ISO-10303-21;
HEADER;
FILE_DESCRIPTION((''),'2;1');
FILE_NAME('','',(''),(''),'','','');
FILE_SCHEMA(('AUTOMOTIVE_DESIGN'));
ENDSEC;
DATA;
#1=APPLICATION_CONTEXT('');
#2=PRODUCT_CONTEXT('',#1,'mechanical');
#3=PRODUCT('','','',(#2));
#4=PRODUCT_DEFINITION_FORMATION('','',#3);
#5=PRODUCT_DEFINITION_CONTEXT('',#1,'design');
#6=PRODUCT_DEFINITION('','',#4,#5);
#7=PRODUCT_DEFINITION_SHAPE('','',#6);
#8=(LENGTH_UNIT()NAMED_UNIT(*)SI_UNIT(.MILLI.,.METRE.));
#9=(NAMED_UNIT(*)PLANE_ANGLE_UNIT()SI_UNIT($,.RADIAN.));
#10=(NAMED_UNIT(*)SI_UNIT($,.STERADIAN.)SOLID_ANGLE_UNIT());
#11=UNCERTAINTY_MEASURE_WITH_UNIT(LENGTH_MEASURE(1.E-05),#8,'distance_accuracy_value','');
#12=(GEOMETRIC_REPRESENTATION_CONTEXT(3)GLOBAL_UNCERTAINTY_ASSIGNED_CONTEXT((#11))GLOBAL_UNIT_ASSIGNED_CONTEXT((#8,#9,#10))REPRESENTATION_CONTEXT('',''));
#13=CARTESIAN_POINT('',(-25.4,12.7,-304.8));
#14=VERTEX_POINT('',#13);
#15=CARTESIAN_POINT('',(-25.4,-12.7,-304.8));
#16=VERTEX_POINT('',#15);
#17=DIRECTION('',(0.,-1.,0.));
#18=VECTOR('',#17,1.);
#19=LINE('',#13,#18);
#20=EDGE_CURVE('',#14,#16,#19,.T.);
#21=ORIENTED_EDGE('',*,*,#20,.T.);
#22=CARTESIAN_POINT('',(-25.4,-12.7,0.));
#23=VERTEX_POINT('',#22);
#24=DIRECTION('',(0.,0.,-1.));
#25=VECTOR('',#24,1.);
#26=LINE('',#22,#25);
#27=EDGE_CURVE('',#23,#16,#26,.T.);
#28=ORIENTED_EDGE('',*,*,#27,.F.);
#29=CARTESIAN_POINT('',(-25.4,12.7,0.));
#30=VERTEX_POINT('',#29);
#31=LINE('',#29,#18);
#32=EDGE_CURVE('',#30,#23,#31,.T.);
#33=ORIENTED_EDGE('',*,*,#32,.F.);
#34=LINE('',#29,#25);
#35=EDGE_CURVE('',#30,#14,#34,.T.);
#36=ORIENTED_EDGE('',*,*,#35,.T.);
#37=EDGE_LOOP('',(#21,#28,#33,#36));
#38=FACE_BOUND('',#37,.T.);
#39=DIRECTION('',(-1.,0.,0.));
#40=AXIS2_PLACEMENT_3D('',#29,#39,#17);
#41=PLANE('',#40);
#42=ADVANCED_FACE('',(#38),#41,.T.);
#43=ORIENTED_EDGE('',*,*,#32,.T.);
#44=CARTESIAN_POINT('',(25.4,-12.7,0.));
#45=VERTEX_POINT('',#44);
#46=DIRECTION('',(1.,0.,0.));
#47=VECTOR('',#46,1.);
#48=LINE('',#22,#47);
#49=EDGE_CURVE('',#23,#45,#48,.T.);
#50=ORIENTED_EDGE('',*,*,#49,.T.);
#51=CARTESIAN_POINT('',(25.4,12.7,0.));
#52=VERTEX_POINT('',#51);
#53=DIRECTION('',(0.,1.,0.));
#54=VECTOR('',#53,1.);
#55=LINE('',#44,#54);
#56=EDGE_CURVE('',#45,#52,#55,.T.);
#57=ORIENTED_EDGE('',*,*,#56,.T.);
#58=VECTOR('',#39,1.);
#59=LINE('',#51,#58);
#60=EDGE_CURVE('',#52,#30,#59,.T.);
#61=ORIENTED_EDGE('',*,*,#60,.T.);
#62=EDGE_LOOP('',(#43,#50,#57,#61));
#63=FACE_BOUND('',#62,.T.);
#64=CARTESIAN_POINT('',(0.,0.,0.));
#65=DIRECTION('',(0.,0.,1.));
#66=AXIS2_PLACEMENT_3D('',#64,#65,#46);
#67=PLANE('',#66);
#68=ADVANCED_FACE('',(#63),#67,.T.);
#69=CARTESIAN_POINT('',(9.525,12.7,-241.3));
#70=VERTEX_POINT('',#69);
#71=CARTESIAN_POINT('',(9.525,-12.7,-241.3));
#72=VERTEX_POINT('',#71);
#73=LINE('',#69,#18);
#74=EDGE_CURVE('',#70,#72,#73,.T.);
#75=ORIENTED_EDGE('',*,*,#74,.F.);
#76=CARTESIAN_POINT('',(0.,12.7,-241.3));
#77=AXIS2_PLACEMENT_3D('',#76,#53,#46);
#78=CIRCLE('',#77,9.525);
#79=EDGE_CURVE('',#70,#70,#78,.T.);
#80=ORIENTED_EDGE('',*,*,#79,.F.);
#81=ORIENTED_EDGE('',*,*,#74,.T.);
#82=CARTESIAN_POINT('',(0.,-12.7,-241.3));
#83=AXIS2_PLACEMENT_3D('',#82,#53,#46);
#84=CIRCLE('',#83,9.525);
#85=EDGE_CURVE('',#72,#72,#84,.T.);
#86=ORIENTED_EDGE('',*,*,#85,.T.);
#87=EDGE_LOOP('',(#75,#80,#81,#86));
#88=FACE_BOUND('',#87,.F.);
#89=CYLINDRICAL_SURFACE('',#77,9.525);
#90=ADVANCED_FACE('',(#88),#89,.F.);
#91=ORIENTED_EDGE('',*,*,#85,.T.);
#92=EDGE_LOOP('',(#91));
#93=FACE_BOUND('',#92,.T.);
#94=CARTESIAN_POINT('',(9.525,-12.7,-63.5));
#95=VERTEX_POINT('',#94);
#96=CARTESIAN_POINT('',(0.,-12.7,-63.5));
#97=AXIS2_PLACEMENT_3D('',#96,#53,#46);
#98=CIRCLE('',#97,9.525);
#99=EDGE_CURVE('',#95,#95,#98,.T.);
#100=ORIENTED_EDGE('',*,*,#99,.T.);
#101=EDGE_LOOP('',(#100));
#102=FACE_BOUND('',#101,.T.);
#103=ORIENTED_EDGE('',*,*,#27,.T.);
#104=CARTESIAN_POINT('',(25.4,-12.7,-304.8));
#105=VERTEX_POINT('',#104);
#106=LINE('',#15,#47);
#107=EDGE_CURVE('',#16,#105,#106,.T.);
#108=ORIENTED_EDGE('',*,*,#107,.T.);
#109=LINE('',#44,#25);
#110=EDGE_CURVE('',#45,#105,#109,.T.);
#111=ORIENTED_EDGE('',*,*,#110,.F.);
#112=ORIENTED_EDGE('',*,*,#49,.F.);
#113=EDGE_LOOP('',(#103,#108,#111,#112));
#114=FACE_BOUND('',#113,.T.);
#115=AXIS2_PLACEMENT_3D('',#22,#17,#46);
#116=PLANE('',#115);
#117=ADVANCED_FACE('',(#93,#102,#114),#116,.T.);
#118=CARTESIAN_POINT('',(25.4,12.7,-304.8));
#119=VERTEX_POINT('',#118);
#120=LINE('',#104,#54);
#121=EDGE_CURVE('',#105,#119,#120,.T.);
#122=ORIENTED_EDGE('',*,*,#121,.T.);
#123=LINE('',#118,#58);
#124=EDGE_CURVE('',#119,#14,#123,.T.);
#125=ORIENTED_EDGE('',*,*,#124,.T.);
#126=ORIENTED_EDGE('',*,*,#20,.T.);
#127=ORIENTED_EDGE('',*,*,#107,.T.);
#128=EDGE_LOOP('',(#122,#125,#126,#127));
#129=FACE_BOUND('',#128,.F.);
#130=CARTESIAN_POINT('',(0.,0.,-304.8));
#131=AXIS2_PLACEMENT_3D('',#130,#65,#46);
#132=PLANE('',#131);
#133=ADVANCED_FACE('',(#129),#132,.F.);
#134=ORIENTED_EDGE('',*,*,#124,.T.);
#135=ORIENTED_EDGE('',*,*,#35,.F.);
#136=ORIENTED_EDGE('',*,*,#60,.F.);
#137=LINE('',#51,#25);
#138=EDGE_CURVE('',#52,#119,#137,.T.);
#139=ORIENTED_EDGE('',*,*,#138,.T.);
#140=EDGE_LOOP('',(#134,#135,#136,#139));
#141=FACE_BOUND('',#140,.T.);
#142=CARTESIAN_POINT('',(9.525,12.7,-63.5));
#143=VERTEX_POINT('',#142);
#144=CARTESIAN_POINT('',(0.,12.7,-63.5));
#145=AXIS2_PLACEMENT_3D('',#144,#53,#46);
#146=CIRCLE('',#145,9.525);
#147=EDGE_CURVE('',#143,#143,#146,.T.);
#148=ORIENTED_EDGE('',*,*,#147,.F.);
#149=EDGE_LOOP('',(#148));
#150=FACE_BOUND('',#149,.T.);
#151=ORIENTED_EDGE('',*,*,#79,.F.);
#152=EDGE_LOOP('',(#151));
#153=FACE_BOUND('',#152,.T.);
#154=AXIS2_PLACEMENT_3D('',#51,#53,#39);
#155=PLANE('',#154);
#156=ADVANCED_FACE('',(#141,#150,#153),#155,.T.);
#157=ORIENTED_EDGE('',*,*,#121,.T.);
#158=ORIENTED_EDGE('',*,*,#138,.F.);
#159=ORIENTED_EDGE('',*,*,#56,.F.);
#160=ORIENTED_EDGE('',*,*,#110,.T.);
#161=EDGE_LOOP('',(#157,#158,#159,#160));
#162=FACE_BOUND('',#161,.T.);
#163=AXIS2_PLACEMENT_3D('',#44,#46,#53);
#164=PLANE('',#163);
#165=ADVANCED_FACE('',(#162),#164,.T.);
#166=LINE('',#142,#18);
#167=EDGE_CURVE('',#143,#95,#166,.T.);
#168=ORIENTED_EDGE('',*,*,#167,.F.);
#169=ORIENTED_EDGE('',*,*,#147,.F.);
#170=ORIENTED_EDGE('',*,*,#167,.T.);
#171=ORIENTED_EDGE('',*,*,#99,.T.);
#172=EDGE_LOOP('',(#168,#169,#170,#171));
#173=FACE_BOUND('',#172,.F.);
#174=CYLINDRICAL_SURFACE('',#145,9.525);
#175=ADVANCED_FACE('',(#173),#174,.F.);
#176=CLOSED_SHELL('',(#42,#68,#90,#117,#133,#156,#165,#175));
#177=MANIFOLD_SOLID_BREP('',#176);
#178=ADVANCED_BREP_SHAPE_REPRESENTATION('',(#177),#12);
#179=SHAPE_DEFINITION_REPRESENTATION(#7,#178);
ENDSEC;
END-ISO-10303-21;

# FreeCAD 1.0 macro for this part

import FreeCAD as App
import Part
import Sketcher
Q = App.Units.Quantity


def add_polygon(sketch, points):
    """Adds a closed chain of lines whose ends are joined by coincident constraints."""
    first, n = sketch.GeometryCount, len(points)
    for a, b in zip(points, points[1:] + points[:1]):
        sketch.addGeometry(Part.LineSegment(App.Vector(*a, 0), App.Vector(*b, 0)), False)
    for i in range(n):
        sketch.addConstraint(Sketcher.Constraint("Coincident", first + i, 2, first + (i + 1) % n, 1))

doc = App.newDocument("Part")
body = doc.addObject("PartDesign::Body", "Body")

# Sketch on XY plane
sketch1 = body.newObject("Sketcher::SketchObject", "Sketch")
sketch1.AttachmentSupport = (doc.getObject("XY_Plane"), [""])
sketch1.MapMode = "FlatFace"
add_polygon(sketch1, [(-25, 13), (-25, -13), (25, -13), (25, 13)])  # lines 0-3
sketch1.addConstraint(Sketcher.Constraint("Vertical", 0))
sketch1.addConstraint(Sketcher.Constraint("Horizontal", 1))
sketch1.addConstraint(Sketcher.Constraint("Vertical", 2))
sketch1.addConstraint(Sketcher.Constraint("Horizontal", 3))
sketch1.addConstraint(Sketcher.Constraint("Symmetric", 0, 2, 2, 2, -1, 1))
sketch1.addConstraint(Sketcher.Constraint("DistanceX", 1, 1, 1, 2, Q("2 in")))
sketch1.addConstraint(Sketcher.Constraint("DistanceY", 0, 2, 0, 1, Q("1 in")))
pad1 = body.newObject("PartDesign::Pad", "Pad")
pad1.Profile = sketch1
pad1.Length = Q("12 in")
pad1.Reversed = True

# Sketch on XZ plane
sketch2 = body.newObject("Sketcher::SketchObject", "Sketch001")
sketch2.AttachmentSupport = (doc.getObject("XZ_Plane"), [""])
sketch2.MapMode = "FlatFace"
sketch2.AttachmentOffset = App.Placement(App.Vector(0, 0, -0.5 * 25.4), App.Rotation())
sketch2.addGeometry(Part.Circle(App.Vector(0, -64, 0), App.Vector(0, 0, 1), 10), False)
sketch2.addGeometry(Part.Circle(App.Vector(0, -241, 0), App.Vector(0, 0, 1), 10), False)
sketch2.addConstraint(Sketcher.Constraint("Equal", 0, 1))
sketch2.addConstraint(Sketcher.Constraint("PointOnObject", 0, 3, -2))
sketch2.addConstraint(Sketcher.Constraint("PointOnObject", 1, 3, -2))
sketch2.addConstraint(Sketcher.Constraint("Diameter", 0, Q("0.75 in")))
sketch2.addConstraint(Sketcher.Constraint("DistanceY", 1, 3, 0, 3, Q("7 in")))
sketch2.addConstraint(Sketcher.Constraint("DistanceY", 0, 3, -1, 1, Q("2.5 in")))
pocket1 = body.newObject("PartDesign::Pocket", "Pocket")
pocket1.Profile = sketch2
pocket1.Length = Q("10 in")
pocket1.Reversed = True

doc.recompute()
